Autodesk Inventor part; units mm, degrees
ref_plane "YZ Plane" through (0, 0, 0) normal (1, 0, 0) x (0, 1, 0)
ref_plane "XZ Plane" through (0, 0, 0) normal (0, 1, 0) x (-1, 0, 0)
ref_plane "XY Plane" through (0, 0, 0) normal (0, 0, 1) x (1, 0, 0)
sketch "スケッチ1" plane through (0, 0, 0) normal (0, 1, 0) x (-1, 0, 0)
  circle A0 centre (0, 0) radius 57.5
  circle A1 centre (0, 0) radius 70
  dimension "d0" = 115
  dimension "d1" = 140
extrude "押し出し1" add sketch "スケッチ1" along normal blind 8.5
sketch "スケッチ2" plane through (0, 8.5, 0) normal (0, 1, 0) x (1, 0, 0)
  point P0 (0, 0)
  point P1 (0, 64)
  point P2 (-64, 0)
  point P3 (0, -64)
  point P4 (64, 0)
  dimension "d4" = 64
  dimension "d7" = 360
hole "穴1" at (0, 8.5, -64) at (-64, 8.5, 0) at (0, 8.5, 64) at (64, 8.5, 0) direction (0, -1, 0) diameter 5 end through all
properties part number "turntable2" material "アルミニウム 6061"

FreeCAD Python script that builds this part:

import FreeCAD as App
import Part
import Sketcher

doc = App.newDocument("Part")
body = doc.addObject("PartDesign::Body", "Body")

# Sketch on XZ plane
sketch1 = body.newObject("Sketcher::SketchObject", "Sketch")
sketch1.AttachmentSupport = (doc.getObject("XZ_Plane"), [""])
sketch1.MapMode = "FlatFace"
sketch1.addGeometry(Part.Circle(App.Vector(0, 0, 0), App.Vector(0, 0, 1), 70), False)
sketch1.addGeometry(Part.Circle(App.Vector(0, 0, 0), App.Vector(0, 0, 1), 57.5), False)
sketch1.addConstraint(Sketcher.Constraint("Coincident", 0, 3, -1, 1))
sketch1.addConstraint(Sketcher.Constraint("Coincident", 1, 3, -1, 1))
sketch1.addConstraint(Sketcher.Constraint("Diameter", 0, 140.0))
sketch1.addConstraint(Sketcher.Constraint("Diameter", 1, 115.0))
pad1 = body.newObject("PartDesign::Pad", "Pad")
pad1.Profile = sketch1
pad1.Length = 8.5
pad1.Reversed = True

# Sketch on XZ plane
sketch2 = body.newObject("Sketcher::SketchObject", "Sketch001")
sketch2.AttachmentSupport = (doc.getObject("XZ_Plane"), [""])
sketch2.MapMode = "FlatFace"
sketch2.AttachmentOffset = App.Placement(App.Vector(0, 0, -8.5), App.Rotation())
sketch2.addGeometry(Part.Circle(App.Vector(0, -64, 0), App.Vector(0, 0, 1), 2.5), False)
sketch2.addGeometry(Part.Circle(App.Vector(-64, 0, 0), App.Vector(0, 0, 1), 2.5), False)
sketch2.addGeometry(Part.Circle(App.Vector(0, 64, 0), App.Vector(0, 0, 1), 2.5), False)
sketch2.addGeometry(Part.Circle(App.Vector(64, 0, 0), App.Vector(0, 0, 1), 2.5), False)
sketch2.addConstraint(Sketcher.Constraint("Equal", 0, 1))
sketch2.addConstraint(Sketcher.Constraint("Equal", 1, 2))
sketch2.addConstraint(Sketcher.Constraint("Equal", 2, 3))
sketch2.addConstraint(Sketcher.Constraint("Symmetric", 0, 3, 2, 3, -1, 1))
sketch2.addConstraint(Sketcher.Constraint("Symmetric", 1, 3, 3, 3, -1, 1))
sketch2.addConstraint(Sketcher.Constraint("PointOnObject", 0, 3, -2))
sketch2.addConstraint(Sketcher.Constraint("PointOnObject", 1, 3, -1))
sketch2.addConstraint(Sketcher.Constraint("Diameter", 0, 5.0))
sketch2.addConstraint(Sketcher.Constraint("DistanceY", 0, 3, -1, 1, 64.0))
sketch2.addConstraint(Sketcher.Constraint("DistanceX", 1, 3, -1, 1, 64.0))
doc.recompute()
hole = body.newObject("PartDesign::Hole", "Hole")
hole.Profile = sketch2
hole.ThreadType = "None"
hole.Diameter = 5
hole.DepthType = "ThroughAll"
hole.Reversed = True

doc.recompute()
